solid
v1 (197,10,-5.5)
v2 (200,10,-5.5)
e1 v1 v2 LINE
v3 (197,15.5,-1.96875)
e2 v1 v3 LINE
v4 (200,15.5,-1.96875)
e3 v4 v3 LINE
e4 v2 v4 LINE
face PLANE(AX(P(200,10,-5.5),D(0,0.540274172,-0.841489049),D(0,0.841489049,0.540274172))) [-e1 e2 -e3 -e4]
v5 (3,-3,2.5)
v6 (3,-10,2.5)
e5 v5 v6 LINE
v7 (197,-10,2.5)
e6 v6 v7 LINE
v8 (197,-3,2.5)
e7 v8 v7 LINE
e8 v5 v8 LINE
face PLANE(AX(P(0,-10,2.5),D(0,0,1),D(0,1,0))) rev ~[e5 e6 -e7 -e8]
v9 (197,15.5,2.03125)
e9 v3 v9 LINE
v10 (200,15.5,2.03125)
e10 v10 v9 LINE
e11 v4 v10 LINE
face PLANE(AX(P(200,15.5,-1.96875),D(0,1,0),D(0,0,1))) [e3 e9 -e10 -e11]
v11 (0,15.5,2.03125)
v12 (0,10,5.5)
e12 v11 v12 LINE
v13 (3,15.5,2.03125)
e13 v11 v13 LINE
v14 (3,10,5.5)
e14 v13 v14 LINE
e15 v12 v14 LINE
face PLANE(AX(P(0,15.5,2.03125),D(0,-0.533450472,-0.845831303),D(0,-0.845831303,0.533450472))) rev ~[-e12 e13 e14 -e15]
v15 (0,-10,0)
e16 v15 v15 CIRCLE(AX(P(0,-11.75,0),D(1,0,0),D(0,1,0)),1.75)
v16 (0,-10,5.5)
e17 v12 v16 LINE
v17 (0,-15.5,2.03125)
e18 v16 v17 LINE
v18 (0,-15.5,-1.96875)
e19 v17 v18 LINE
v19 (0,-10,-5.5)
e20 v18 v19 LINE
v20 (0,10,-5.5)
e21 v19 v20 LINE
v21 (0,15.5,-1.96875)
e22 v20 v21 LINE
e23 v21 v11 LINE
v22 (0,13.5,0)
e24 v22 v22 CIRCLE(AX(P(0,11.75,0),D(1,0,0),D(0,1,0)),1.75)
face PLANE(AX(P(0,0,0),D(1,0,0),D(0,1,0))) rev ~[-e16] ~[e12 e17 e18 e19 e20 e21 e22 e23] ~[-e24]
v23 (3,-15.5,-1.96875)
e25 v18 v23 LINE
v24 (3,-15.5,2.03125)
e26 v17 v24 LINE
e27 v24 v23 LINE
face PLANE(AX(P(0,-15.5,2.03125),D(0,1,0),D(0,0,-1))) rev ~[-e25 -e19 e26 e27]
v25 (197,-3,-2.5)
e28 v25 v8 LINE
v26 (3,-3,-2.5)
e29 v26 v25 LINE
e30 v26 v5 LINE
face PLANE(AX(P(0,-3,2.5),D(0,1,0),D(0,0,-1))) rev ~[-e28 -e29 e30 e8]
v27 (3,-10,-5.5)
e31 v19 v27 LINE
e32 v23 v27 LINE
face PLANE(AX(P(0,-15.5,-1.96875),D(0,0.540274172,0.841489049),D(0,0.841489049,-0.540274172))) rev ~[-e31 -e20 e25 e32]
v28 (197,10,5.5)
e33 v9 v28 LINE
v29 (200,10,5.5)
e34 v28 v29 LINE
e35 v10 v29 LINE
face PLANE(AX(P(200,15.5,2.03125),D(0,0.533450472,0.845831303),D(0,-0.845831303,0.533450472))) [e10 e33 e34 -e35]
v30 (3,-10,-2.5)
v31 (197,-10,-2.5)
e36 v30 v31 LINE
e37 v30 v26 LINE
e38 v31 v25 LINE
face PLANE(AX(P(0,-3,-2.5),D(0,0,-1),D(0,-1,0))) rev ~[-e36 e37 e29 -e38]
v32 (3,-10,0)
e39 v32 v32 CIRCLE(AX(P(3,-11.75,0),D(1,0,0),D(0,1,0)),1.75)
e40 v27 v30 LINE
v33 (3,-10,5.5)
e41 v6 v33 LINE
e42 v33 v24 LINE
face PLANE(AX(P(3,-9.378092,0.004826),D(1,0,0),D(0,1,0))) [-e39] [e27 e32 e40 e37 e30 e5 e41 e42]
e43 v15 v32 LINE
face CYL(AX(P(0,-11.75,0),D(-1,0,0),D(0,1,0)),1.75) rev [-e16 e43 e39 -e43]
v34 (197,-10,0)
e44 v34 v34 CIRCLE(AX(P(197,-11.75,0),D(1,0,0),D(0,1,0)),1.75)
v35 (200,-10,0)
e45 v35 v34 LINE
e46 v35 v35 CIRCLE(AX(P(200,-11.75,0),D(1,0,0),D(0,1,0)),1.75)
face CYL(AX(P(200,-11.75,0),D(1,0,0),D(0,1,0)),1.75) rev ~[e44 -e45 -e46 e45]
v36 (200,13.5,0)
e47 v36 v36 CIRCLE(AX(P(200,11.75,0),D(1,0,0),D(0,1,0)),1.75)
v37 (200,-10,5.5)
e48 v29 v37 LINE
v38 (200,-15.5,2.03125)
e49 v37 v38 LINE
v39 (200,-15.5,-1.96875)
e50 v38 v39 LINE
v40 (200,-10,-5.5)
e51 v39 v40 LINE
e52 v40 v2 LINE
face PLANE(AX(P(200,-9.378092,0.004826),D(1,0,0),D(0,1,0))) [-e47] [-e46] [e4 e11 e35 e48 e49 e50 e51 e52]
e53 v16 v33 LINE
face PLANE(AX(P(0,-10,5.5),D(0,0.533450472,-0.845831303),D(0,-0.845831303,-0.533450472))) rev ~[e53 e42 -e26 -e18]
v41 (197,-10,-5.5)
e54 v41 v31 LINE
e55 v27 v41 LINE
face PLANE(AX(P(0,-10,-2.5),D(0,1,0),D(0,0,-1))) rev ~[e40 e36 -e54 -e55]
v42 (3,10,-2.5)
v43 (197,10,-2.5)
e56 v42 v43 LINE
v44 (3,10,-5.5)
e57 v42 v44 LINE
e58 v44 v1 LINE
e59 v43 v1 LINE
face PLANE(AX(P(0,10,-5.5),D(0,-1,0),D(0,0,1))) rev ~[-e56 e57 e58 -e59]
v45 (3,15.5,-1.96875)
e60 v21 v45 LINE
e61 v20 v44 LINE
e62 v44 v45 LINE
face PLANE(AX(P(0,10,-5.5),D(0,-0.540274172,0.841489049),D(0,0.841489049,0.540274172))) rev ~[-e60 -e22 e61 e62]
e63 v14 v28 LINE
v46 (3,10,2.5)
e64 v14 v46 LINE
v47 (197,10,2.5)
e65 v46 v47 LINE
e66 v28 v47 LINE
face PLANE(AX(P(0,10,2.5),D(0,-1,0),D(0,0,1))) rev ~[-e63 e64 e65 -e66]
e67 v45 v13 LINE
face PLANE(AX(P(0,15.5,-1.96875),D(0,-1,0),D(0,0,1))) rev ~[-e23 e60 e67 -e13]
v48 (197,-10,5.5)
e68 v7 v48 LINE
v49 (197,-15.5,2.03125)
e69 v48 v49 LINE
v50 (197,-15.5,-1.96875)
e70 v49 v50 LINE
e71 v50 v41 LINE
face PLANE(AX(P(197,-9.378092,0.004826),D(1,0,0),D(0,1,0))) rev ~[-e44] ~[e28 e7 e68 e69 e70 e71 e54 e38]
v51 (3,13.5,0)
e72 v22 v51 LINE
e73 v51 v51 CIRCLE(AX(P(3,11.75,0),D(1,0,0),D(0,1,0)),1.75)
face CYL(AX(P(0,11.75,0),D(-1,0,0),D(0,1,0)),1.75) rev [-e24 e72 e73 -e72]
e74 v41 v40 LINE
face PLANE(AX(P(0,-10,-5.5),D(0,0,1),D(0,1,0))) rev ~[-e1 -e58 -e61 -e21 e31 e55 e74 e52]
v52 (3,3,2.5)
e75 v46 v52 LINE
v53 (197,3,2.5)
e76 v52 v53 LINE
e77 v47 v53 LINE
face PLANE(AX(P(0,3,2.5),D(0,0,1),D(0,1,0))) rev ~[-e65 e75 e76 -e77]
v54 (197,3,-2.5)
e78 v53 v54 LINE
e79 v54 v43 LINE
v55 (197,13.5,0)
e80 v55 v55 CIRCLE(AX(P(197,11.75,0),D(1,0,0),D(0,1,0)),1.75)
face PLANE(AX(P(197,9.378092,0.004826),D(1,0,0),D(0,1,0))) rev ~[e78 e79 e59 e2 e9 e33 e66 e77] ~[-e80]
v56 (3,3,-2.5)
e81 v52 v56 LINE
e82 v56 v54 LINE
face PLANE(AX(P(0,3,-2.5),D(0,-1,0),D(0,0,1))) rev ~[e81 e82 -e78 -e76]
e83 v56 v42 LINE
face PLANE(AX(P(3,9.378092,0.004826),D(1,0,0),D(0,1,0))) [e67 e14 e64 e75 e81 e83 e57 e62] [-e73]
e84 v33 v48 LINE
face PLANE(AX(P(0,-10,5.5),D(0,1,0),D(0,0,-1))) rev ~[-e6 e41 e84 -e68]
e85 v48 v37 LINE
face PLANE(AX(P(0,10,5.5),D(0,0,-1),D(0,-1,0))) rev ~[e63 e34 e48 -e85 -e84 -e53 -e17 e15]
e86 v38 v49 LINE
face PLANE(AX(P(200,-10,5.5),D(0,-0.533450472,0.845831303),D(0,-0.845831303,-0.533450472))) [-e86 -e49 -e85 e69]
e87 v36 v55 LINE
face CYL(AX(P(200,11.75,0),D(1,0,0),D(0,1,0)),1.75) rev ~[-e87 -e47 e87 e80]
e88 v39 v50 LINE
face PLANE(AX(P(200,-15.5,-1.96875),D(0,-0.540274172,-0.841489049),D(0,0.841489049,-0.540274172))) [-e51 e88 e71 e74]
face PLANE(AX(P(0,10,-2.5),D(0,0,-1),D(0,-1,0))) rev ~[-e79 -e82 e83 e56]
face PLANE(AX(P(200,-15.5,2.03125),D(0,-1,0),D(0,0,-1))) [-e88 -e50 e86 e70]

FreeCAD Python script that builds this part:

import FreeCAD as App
import Part
import Sketcher

V = App.Vector
Q = App.Units.Quantity


def add_polygon(sketch, points):
    """Adds a closed chain of lines whose ends are joined by coincident constraints."""
    first, n = sketch.GeometryCount, len(points)
    for a, b in zip(points, points[1:] + points[:1]):
        sketch.addGeometry(Part.LineSegment(App.Vector(*a, 0), App.Vector(*b, 0)), False)
    for i in range(n):
        sketch.addConstraint(Sketcher.Constraint("Coincident", first + i, 2, first + (i + 1) % n, 1))

doc = App.newDocument("Part")
params = doc.addObject("Spreadsheet::Sheet", "Params")
for row, (alias, value) in enumerate([
    ("sketch1_diameter", "3.5 mm"),
    ("sketch1_width", "7 mm"),
    ("sketch1_height", "3 mm"),
    ("sketch1_height2", "4 mm"),
    ("sketch1_height3", "5 mm"),
    ("pad1_length", "3 mm"),
    ("sketch2_diameter", "3.5 mm"),
    ("sketch2_width", "7 mm"),
    ("sketch2_height", "3 mm"),
    ("sketch2_height2", "5 mm"),
    ("sketch2_height3", "4 mm"),
    ("pad2_length", "3 mm"),
    ("sketch3_width", "7 mm"),
    ("sketch3_width2", "20 mm"),
    ("sketch3_height", "3 mm"),
    ("sketch3_height2", "5 mm"),
    ("pad3_length", "200 mm"),
    ("sketch4_diameter", "3.5 mm"),
    ("sketch4_width", "7 mm"),
    ("sketch4_height", "3 mm"),
    ("sketch4_height2", "4 mm"),
    ("sketch4_height3", "5 mm"),
    ("pad4_length", "3 mm"),
], start=1):
    params.set(f"A{row}", alias)
    params.set(f"B{row}", "=" + value)
    params.setAlias(f"B{row}", alias)

body = doc.addObject("PartDesign::Body", "Body")

# Sketch on YZ plane
sketch1 = doc.addObject("Sketcher::SketchObject", "Sketch")
body.addObject(sketch1)
sketch1.AttachmentSupport = (doc.YZ_Plane, [""])
sketch1.MapMode = "FlatFace"
add_polygon(sketch1, [(-3, 2.5), (-10, 2.5), (-10, 5.5), (-15.5, 2), (-15.5, -2), (-10, -5.5), (-10, -2.5), (-3, -2.5)])  # lines 0-7
sketch1.addGeometry(Part.Circle(V(-11.8, 0, 0), V(0, 0, 1), 1.8), False)  # 8
sketch1.addConstraint([
    Sketcher.Constraint("Horizontal", 0),
    Sketcher.Constraint("Vertical", 1),
    Sketcher.Constraint("Vertical", 3),
    Sketcher.Constraint("Vertical", 5),
    Sketcher.Constraint("Horizontal", 6),
    Sketcher.Constraint("Vertical", 7),
    Sketcher.Constraint("Symmetric", 1, 2, 4, 2, -1),
    Sketcher.Constraint("PointOnObject", 8, 3, -1),
    Sketcher.Constraint("Equal", 1, 5),
    Sketcher.Constraint("Diameter", 8, Q("3.5 mm")),
    Sketcher.Constraint("DistanceX", 0, 2, 0, 1, Q("7 mm")),
    Sketcher.Constraint("DistanceY", 1, 1, 1, 2, Q("3 mm")),
    Sketcher.Constraint("DistanceY", 3, 2, 3, 1, Q("4 mm")),
    Sketcher.Constraint("DistanceY", 7, 1, 7, 2, Q("5 mm")),
    Sketcher.Constraint("DistanceX", 0, 2, -1, 1, Q("10 mm")),
    Sketcher.Constraint("DistanceX", 2, 2, -1, 1, Q("15.5 mm")),
    Sketcher.Constraint("DistanceX", 8, 3, -1, 1, Q("11.75 mm")),
    Sketcher.Constraint("Distance", 2, Q("6.502479 mm")),
])
sketch1.setExpression("Constraints[17]", "Params.sketch1_diameter")
sketch1.setExpression("Constraints[18]", "Params.sketch1_width")
sketch1.setExpression("Constraints[19]", "Params.sketch1_height")
sketch1.setExpression("Constraints[20]", "Params.sketch1_height2")
sketch1.setExpression("Constraints[21]", "Params.sketch1_height3")
pad1 = doc.addObject("PartDesign::Pad", "Pad")
body.addObject(pad1)
pad1.Profile = sketch1
pad1.setExpression("Length", "Params.pad1_length")
body2 = doc.addObject("PartDesign::Body", "Body001")

# Sketch on YZ plane
sketch2 = doc.addObject("Sketcher::SketchObject", "Sketch001")
body2.addObject(sketch2)
sketch2.AttachmentSupport = (doc.getObject("YZ_Plane001"), [""])
sketch2.MapMode = "FlatFace"
add_polygon(sketch2, [(15.5, 2), (10, 5.5), (10, 2.5), (3, 2.5), (3, -2.5), (10, -2.5), (10, -5.5), (15.5, -2)])  # lines 0-7
sketch2.addGeometry(Part.Circle(V(11.8, 0, 0), V(0, 0, 1), 1.8), False)  # 8
sketch2.addConstraint([
    Sketcher.Constraint("Vertical", 1),
    Sketcher.Constraint("Horizontal", 2),
    Sketcher.Constraint("Vertical", 3),
    Sketcher.Constraint("Horizontal", 4),
    Sketcher.Constraint("Vertical", 5),
    Sketcher.Constraint("Vertical", 7),
    Sketcher.Constraint("Symmetric", 1, 2, 4, 2, -1),
    Sketcher.Constraint("PointOnObject", 8, 3, -1),
    Sketcher.Constraint("Equal", 1, 5),
    Sketcher.Constraint("Diameter", 8, Q("3.5 mm")),
    Sketcher.Constraint("DistanceX", 2, 2, 2, 1, Q("7 mm")),
    Sketcher.Constraint("DistanceY", 1, 2, 1, 1, Q("3 mm")),
    Sketcher.Constraint("DistanceY", 3, 2, 3, 1, Q("5 mm")),
    Sketcher.Constraint("DistanceY", 7, 1, 7, 2, Q("4 mm")),
    Sketcher.Constraint("DistanceX", -1, 1, 0, 2, Q("10 mm")),
    Sketcher.Constraint("DistanceX", -1, 1, 6, 2, Q("15.5 mm")),
    Sketcher.Constraint("DistanceX", -1, 1, 8, 3, Q("11.75 mm")),
    Sketcher.Constraint("Distance", 0, Q("6.502479 mm")),
])
sketch2.setExpression("Constraints[17]", "Params.sketch2_diameter")
sketch2.setExpression("Constraints[18]", "Params.sketch2_width")
sketch2.setExpression("Constraints[19]", "Params.sketch2_height")
sketch2.setExpression("Constraints[20]", "Params.sketch2_height2")
sketch2.setExpression("Constraints[21]", "Params.sketch2_height3")
pad2 = doc.addObject("PartDesign::Pad", "Pad001")
body2.addObject(pad2)
pad2.Profile = sketch2
pad2.setExpression("Length", "Params.pad2_length")
body.AllowCompound = True
doc.recompute()

boolean = doc.addObject("PartDesign::Boolean", "Boolean")
body.addObject(boolean)
boolean.Type = "Fuse"
boolean.addObjects([body2])

# Sketch on YZ plane
sketch3 = doc.addObject("Sketcher::SketchObject", "Sketch002")
body.addObject(sketch3)
sketch3.AttachmentSupport = (doc.YZ_Plane, [""])
sketch3.MapMode = "FlatFace"
add_polygon(sketch3, [(-10, 5.5), (-10, 2.5), (-3, 2.5), (-3, -2.5), (-10, -2.5), (-10, -5.5), (10, -5.5), (10, -2.5), (3, -2.5), (3, 2.5), (10, 2.5), (10, 5.5)])  # lines 0-11
sketch3.addConstraint([
    Sketcher.Constraint("Vertical", 0),
    Sketcher.Constraint("Horizontal", 1),
    Sketcher.Constraint("Vertical", 2),
    Sketcher.Constraint("Horizontal", 3),
    Sketcher.Constraint("Vertical", 4),
    Sketcher.Constraint("Horizontal", 5),
    Sketcher.Constraint("Vertical", 6),
    Sketcher.Constraint("Horizontal", 7),
    Sketcher.Constraint("Vertical", 8),
    Sketcher.Constraint("Horizontal", 9),
    Sketcher.Constraint("Vertical", 10),
    Sketcher.Constraint("Horizontal", 11),
    Sketcher.Constraint("Symmetric", 0, 2, 6, 2, -1, 1),
    Sketcher.Constraint("Symmetric", 2, 2, 8, 2, -1, 1),
    Sketcher.Constraint("Symmetric", 4, 2, 10, 2, -1, 1),
    Sketcher.Constraint("Symmetric", 3, 2, 6, 2, -2),
    Sketcher.Constraint("DistanceX", 1, 1, 1, 2, Q("7 mm")),
    Sketcher.Constraint("DistanceX", 5, 1, 5, 2, Q("20 mm")),
    Sketcher.Constraint("DistanceY", 0, 2, 0, 1, Q("3 mm")),
    Sketcher.Constraint("DistanceY", 2, 2, 2, 1, Q("5 mm")),
])
sketch3.setExpression("Constraints[28]", "Params.sketch3_width")
sketch3.setExpression("Constraints[29]", "Params.sketch3_width2")
sketch3.setExpression("Constraints[30]", "Params.sketch3_height")
sketch3.setExpression("Constraints[31]", "Params.sketch3_height2")
pad3 = doc.addObject("PartDesign::Pad", "Pad002")
body.addObject(pad3)
pad3.Profile = sketch3
pad3.setExpression("Length", "Params.pad3_length")

# Sketch on YZ plane
sketch4 = doc.addObject("Sketcher::SketchObject", "Sketch003")
body.addObject(sketch4)
sketch4.AttachmentSupport = (doc.YZ_Plane, [""])
sketch4.MapMode = "FlatFace"
sketch4.AttachmentOffset = App.Placement(V(0, 0, 200), App.Rotation())
add_polygon(sketch4, [(-3, 2.5), (-10, 2.5), (-10, 5.5), (-15.5, 2), (-15.5, -2), (-10, -5.5), (-10, -2.5), (-3, -2.5)])  # lines 0-7
sketch4.addGeometry(Part.Circle(V(-11.8, 0, 0), V(0, 0, 1), 1.8), False)  # 8
add_polygon(sketch4, [(15.5, 2), (10, 5.5), (10, 2.5), (3, 2.5), (3, -2.5), (10, -2.5), (10, -5.5), (15.5, -2)])  # lines 9-16
sketch4.addGeometry(Part.Circle(V(11.8, 0, 0), V(0, 0, 1), 1.8), False)  # 17
sketch4.addConstraint([
    Sketcher.Constraint("Horizontal", 0),
    Sketcher.Constraint("Vertical", 1),
    Sketcher.Constraint("Vertical", 3),
    Sketcher.Constraint("Vertical", 5),
    Sketcher.Constraint("Horizontal", 6),
    Sketcher.Constraint("Vertical", 7),
    Sketcher.Constraint("Vertical", 10),
    Sketcher.Constraint("Horizontal", 11),
    Sketcher.Constraint("Vertical", 12),
    Sketcher.Constraint("Horizontal", 13),
    Sketcher.Constraint("Vertical", 14),
    Sketcher.Constraint("Vertical", 16),
    Sketcher.Constraint("Equal", 8, 17),
    Sketcher.Constraint("Symmetric", 8, 3, 17, 3, -1, 1),
    Sketcher.Constraint("Symmetric", 4, 2, 9, 2, -1, 1),
    Sketcher.Constraint("Symmetric", 6, 2, 11, 2, -1, 1),
    Sketcher.Constraint("Symmetric", 0, 2, 13, 2, -1, 1),
    Sketcher.Constraint("Symmetric", 1, 2, 9, 2, -2),
    Sketcher.Constraint("Symmetric", 3, 2, 15, 2, -2),
    Sketcher.Constraint("PointOnObject", 8, 3, -1),
    Sketcher.Constraint("Horizontal", 7, 2, 10, 2),
    Sketcher.Constraint("Horizontal", 4, 2, 14, 2),
    Sketcher.Constraint("Horizontal", 2, 2, 16, 2),
    Sketcher.Constraint("Diameter", 8, Q("3.5 mm")),
    Sketcher.Constraint("DistanceX", 0, 2, 0, 1, Q("7 mm")),
    Sketcher.Constraint("DistanceY", 1, 1, 1, 2, Q("3 mm")),
    Sketcher.Constraint("DistanceY", 3, 2, 3, 1, Q("4 mm")),
    Sketcher.Constraint("DistanceY", 7, 1, 7, 2, Q("5 mm")),
    Sketcher.Constraint("DistanceX", 0, 2, -1, 1, Q("10 mm")),
    Sketcher.Constraint("DistanceX", 2, 2, -1, 1, Q("15.5 mm")),
    Sketcher.Constraint("DistanceX", 8, 3, 17, 3, Q("23.5 mm")),
    Sketcher.Constraint("Distance", 2, Q("6.502479 mm")),
])
sketch4.setExpression("Constraints[39]", "Params.sketch4_diameter")
sketch4.setExpression("Constraints[40]", "Params.sketch4_width")
sketch4.setExpression("Constraints[41]", "Params.sketch4_height")
sketch4.setExpression("Constraints[42]", "Params.sketch4_height2")
sketch4.setExpression("Constraints[43]", "Params.sketch4_height3")
pad4 = doc.addObject("PartDesign::Pad", "Pad003")
body.addObject(pad4)
pad4.Profile = sketch4
pad4.setExpression("Length", "Params.pad4_length")
pad4.Reversed = True

doc.recompute()
